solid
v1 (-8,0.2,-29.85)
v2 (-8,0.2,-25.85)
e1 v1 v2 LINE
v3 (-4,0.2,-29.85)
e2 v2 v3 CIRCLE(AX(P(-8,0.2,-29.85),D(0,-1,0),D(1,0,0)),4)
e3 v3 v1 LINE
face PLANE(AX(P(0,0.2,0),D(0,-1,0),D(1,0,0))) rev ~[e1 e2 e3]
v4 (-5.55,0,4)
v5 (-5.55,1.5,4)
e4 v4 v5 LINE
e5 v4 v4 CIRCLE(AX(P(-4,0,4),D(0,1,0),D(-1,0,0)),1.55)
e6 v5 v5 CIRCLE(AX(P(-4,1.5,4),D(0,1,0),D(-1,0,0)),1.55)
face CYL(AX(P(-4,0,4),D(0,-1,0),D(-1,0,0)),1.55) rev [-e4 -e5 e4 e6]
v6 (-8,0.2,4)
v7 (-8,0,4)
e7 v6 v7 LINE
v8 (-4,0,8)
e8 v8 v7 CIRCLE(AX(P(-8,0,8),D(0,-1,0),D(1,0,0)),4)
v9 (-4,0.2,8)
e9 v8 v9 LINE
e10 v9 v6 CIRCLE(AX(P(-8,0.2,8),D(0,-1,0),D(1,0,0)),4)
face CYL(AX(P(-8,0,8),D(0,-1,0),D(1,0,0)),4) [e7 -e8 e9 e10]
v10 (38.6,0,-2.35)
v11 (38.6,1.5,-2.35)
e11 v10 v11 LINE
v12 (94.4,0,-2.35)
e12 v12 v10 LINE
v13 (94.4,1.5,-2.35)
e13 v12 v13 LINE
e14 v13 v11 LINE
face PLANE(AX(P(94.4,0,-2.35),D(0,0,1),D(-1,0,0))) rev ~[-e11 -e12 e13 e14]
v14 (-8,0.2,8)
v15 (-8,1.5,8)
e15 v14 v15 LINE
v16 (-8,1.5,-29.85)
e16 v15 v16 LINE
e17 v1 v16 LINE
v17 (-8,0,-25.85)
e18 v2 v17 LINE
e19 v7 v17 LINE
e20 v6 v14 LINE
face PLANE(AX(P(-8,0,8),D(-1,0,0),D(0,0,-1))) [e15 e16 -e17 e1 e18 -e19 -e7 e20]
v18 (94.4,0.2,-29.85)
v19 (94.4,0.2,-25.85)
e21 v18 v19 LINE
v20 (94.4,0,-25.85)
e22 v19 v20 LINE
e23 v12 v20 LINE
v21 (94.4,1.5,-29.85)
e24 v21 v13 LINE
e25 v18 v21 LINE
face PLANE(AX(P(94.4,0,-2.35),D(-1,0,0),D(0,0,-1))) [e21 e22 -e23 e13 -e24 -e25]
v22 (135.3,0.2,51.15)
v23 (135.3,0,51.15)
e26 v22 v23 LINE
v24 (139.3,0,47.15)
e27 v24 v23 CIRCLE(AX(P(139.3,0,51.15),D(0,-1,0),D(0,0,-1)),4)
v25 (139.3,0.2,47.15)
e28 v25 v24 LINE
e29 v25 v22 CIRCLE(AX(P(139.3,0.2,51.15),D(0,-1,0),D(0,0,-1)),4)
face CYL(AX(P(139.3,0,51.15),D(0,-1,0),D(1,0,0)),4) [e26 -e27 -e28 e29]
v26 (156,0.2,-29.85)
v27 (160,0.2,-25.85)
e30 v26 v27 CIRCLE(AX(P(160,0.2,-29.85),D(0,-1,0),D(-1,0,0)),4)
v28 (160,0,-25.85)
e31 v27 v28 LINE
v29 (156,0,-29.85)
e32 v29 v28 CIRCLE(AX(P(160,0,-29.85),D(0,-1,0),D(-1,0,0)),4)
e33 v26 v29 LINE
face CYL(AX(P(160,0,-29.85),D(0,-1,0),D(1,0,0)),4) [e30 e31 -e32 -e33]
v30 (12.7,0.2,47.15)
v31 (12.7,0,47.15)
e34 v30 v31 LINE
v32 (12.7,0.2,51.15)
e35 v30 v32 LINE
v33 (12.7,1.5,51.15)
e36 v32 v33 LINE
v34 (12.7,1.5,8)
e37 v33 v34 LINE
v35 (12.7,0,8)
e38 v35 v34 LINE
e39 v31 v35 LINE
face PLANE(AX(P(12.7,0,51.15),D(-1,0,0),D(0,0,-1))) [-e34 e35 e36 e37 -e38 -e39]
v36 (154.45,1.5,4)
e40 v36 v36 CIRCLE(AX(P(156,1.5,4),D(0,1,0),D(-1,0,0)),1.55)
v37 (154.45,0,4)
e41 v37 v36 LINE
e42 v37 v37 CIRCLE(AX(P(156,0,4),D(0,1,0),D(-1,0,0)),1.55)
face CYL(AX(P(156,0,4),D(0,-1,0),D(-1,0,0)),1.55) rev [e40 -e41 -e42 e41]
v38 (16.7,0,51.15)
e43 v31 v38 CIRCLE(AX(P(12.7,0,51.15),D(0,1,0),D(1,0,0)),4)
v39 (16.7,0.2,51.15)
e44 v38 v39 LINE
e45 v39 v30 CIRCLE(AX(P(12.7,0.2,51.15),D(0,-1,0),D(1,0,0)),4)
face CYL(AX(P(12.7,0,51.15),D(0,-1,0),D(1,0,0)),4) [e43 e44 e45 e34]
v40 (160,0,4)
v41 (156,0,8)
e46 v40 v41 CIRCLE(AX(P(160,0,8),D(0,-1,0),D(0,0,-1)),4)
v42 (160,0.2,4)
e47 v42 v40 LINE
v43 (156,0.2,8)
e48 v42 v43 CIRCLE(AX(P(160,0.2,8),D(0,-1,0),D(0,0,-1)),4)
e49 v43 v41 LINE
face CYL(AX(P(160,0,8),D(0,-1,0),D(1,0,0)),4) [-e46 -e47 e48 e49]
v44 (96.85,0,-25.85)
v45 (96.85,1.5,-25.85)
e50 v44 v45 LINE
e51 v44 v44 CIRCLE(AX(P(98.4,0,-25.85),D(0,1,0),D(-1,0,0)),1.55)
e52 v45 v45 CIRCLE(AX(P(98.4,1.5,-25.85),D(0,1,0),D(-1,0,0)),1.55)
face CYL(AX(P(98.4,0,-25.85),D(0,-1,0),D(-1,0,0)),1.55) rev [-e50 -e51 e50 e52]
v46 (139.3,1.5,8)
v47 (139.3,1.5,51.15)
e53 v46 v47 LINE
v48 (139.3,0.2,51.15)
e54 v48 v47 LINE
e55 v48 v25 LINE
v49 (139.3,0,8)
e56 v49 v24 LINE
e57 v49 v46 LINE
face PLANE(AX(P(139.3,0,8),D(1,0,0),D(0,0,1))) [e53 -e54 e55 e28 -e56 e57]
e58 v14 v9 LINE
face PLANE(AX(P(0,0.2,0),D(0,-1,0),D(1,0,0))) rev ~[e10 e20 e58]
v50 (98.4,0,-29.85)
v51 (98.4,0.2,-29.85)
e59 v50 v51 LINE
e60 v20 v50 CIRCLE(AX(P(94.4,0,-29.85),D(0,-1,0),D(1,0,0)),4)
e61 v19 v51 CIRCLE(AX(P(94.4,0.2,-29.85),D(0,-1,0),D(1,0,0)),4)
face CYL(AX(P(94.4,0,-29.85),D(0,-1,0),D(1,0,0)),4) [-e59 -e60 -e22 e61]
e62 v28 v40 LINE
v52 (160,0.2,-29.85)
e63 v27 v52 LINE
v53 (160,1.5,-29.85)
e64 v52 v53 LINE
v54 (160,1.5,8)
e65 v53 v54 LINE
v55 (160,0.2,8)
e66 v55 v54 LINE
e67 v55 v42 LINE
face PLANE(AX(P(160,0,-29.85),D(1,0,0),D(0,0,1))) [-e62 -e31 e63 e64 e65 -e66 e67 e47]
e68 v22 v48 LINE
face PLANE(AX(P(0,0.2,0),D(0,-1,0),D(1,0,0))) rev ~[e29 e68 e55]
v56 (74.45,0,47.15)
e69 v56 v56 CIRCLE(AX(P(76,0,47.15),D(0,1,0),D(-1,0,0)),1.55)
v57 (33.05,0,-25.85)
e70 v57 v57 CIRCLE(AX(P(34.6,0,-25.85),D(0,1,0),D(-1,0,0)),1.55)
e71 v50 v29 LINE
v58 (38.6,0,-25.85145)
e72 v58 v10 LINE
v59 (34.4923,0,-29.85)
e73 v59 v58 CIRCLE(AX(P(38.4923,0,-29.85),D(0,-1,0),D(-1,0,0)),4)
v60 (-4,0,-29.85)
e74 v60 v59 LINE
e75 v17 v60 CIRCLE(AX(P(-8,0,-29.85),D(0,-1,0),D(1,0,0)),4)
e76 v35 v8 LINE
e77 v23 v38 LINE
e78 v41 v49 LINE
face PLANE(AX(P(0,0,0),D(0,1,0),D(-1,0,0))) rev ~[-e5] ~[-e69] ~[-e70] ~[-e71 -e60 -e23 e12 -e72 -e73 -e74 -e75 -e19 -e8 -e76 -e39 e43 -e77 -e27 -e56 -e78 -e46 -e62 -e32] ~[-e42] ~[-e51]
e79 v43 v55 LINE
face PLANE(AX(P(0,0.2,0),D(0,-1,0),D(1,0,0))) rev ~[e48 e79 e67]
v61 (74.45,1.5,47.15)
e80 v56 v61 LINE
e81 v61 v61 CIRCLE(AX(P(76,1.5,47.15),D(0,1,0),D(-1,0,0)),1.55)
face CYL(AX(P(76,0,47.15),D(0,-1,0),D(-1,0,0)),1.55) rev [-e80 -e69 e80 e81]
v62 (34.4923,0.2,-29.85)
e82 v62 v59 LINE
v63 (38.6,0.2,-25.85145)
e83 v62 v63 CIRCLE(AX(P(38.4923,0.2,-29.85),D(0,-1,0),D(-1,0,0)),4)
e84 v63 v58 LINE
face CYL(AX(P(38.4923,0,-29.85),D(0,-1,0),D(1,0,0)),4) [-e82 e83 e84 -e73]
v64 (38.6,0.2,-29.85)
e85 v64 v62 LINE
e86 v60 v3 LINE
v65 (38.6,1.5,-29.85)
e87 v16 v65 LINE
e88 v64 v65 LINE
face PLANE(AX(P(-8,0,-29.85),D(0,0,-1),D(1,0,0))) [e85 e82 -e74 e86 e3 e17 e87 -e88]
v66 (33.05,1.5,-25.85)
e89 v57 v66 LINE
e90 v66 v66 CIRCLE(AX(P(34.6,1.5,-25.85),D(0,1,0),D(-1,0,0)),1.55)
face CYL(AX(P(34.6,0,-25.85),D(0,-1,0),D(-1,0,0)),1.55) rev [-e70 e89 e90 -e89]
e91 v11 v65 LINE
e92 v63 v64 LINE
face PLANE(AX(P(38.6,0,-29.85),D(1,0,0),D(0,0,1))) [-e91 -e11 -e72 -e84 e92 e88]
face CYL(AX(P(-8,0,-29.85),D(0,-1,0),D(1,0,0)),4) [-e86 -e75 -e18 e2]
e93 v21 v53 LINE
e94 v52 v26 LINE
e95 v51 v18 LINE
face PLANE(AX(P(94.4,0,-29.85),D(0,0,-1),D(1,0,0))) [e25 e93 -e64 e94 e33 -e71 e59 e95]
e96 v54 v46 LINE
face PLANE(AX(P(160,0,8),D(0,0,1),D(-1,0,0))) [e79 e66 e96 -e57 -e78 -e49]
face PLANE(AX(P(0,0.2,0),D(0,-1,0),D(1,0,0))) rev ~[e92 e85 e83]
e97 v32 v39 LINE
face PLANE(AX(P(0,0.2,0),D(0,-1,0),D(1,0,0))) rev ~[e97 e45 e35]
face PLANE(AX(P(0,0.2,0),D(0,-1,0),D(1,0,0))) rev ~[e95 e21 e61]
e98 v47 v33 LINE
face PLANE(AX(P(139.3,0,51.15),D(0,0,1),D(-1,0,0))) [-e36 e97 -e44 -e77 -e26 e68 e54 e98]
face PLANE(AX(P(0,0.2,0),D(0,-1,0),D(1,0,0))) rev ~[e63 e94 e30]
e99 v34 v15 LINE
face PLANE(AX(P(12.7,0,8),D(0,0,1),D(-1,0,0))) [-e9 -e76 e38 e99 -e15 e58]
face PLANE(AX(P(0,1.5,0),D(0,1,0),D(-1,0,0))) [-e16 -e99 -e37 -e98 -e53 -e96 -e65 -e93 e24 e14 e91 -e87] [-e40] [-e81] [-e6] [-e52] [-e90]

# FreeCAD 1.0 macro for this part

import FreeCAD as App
import Part
import Sketcher
Q = App.Units.Quantity


def add_polygon(sketch, points):
    """Adds a closed chain of lines whose ends are joined by coincident constraints."""
    first, n = sketch.GeometryCount, len(points)
    for a, b in zip(points, points[1:] + points[:1]):
        sketch.addGeometry(Part.LineSegment(App.Vector(*a, 0), App.Vector(*b, 0)), False)
    for i in range(n):
        sketch.addConstraint(Sketcher.Constraint("Coincident", first + i, 2, first + (i + 1) % n, 1))

doc = App.newDocument("Part")
body = doc.addObject("PartDesign::Body", "Body")

# Sketch on XZ plane
sketch1 = body.newObject("Sketcher::SketchObject", "Sketch")
sketch1.AttachmentSupport = (doc.getObject("XZ_Plane"), [""])
sketch1.MapMode = "FlatFace"
add_polygon(sketch1, [(-8, 8), (12.7, 8), (12.7, 51.1), (139.3, 51.1), (139.3, 8), (160, 8), (160, -29.9), (94.4, -29.9), (94.4, -2.4), (38.6, -2.4), (38.6, -29.9), (-8, -29.9)])  # lines 0-11
sketch1.addGeometry(Part.Circle(App.Vector(98.4, -25.9, 0), App.Vector(0, 0, 1), 1.6), False)  # 12
sketch1.addGeometry(Part.Circle(App.Vector(156, 4, 0), App.Vector(0, 0, 1), 1.6), False)  # 13
sketch1.addGeometry(Part.Circle(App.Vector(-4, 4, 0), App.Vector(0, 0, 1), 1.6), False)  # 14
sketch1.addGeometry(Part.Circle(App.Vector(76, 47.1, 0), App.Vector(0, 0, 1), 1.6), False)  # 15
sketch1.addGeometry(Part.Circle(App.Vector(34.6, -25.9, 0), App.Vector(0, 0, 1), 1.6), False)  # 16
sketch1.addConstraint([
    Sketcher.Constraint("Horizontal", 0),
    Sketcher.Constraint("Vertical", 1),
    Sketcher.Constraint("Horizontal", 2),
    Sketcher.Constraint("Vertical", 3),
    Sketcher.Constraint("Horizontal", 4),
    Sketcher.Constraint("Vertical", 5),
    Sketcher.Constraint("Horizontal", 6),
    Sketcher.Constraint("Vertical", 7),
    Sketcher.Constraint("Horizontal", 8),
    Sketcher.Constraint("Vertical", 9),
    Sketcher.Constraint("Horizontal", 10),
    Sketcher.Constraint("Vertical", 11),
    Sketcher.Constraint("Equal", 12, 13),
    Sketcher.Constraint("Equal", 13, 14),
    Sketcher.Constraint("Equal", 14, 15),
    Sketcher.Constraint("Equal", 15, 16),
    Sketcher.Constraint("Horizontal", 13, 3, 14, 3),
    Sketcher.Constraint("Horizontal", 12, 3, 16, 3),
    Sketcher.Constraint("Horizontal", 0, 2, 3, 2),
    Sketcher.Constraint("Horizontal", 6, 2, 9, 2),
    Sketcher.Constraint("Equal", 0, 4),
    Sketcher.Constraint("Diameter", 12, Q("3.1 mm")),
    Sketcher.Constraint("DistanceX", 0, 1, 0, 2, Q("20.7 mm")),
    Sketcher.Constraint("DistanceX", 2, 1, 2, 2, Q("126.6 mm")),
    Sketcher.Constraint("DistanceX", 6, 2, 6, 1, Q("65.6 mm")),
    Sketcher.Constraint("DistanceX", 8, 2, 8, 1, Q("55.8 mm")),
    Sketcher.Constraint("DistanceY", 7, 1, 7, 2, Q("27.5 mm")),
    Sketcher.Constraint("DistanceX", -1, 1, 13, 3, Q("156 mm")),
    Sketcher.Constraint("DistanceY", -1, 1, 13, 3, Q("4 mm")),
    Sketcher.Constraint("DistanceX", 14, 3, -1, 1, Q("4 mm")),
    Sketcher.Constraint("DistanceX", -1, 1, 15, 3, Q("76 mm")),
    Sketcher.Constraint("DistanceY", -1, 1, 0, 2, Q("8 mm")),
    Sketcher.Constraint("DistanceX", -1, 1, 4, 2, Q("160 mm")),
    Sketcher.Constraint("DistanceY", 12, 3, 15, 3, Q("73 mm")),
    Sketcher.Constraint("DistanceY", 15, 3, 1, 2, Q("4 mm")),
    Sketcher.Constraint("DistanceY", 5, 2, 12, 3, Q("4 mm")),
    Sketcher.Constraint("DistanceX", 6, 2, 12, 3, Q("4 mm")),
    Sketcher.Constraint("DistanceX", 16, 3, 8, 2, Q("4 mm")),
    Sketcher.Constraint("DistanceY", 1, 1, 1, 2, Q("43.15 mm")),
])
pad1 = body.newObject("PartDesign::Pad", "Pad")
pad1.Profile = sketch1
pad1.Length = 1.5
pad1.Reversed = True

# Sketch on XZ plane
sketch2 = body.newObject("Sketcher::SketchObject", "Sketch001")
sketch2.AttachmentSupport = (doc.getObject("XZ_Plane"), [""])
sketch2.MapMode = "FlatFace"
sketch2.addGeometry([
    Part.Circle(App.Vector(12.7, 51.1, 0), App.Vector(0, 0, 1), 4),  # 0
    Part.Circle(App.Vector(139.3, 51.1, 0), App.Vector(0, 0, 1), 4),  # 1
    Part.Circle(App.Vector(160, -29.9, 0), App.Vector(0, 0, 1), 4),  # 2
    Part.Circle(App.Vector(160, 8, 0), App.Vector(0, 0, 1), 4),  # 3
    Part.Circle(App.Vector(94.4, -29.9, 0), App.Vector(0, 0, 1), 4),  # 4
    Part.Circle(App.Vector(38.5, -29.9, 0), App.Vector(0, 0, 1), 4),  # 5
    Part.Circle(App.Vector(-8, -29.9, 0), App.Vector(0, 0, 1), 4),  # 6
    Part.Circle(App.Vector(-8, 8, 0), App.Vector(0, 0, 1), 4),  # 7
], False)
sketch2.addConstraint([
    Sketcher.Constraint("Equal", 0, 1),
    Sketcher.Constraint("Equal", 1, 2),
    Sketcher.Constraint("Equal", 2, 3),
    Sketcher.Constraint("Equal", 3, 4),
    Sketcher.Constraint("Equal", 4, 5),
    Sketcher.Constraint("Equal", 5, 6),
    Sketcher.Constraint("Equal", 6, 7),
    Sketcher.Constraint("Horizontal", 0, 3, 1, 3),
    Sketcher.Constraint("Horizontal", 2, 3, 4, 3),
    Sketcher.Constraint("Horizontal", 4, 3, 5, 3),
    Sketcher.Constraint("Horizontal", 5, 3, 6, 3),
    Sketcher.Constraint("Horizontal", 3, 3, 7, 3),
    Sketcher.Constraint("Vertical", 2, 3, 3, 3),
    Sketcher.Constraint("Vertical", 6, 3, 7, 3),
    Sketcher.Constraint("Diameter", 0, Q("8 mm")),
    Sketcher.Constraint("DistanceY", -1, 1, 3, 3, Q("8 mm")),
    Sketcher.Constraint("DistanceX", 6, 3, -1, 1, Q("8 mm")),
    Sketcher.Constraint("DistanceX", -1, 1, 2, 3, Q("160 mm")),
    Sketcher.Constraint("DistanceY", 2, 3, 1, 3, Q("81 mm")),
    Sketcher.Constraint("DistanceX", -1, 1, 0, 3, Q("12.7 mm")),
    Sketcher.Constraint("DistanceX", -1, 1, 1, 3, Q("139.3 mm")),
    Sketcher.Constraint("DistanceX", -1, 1, 4, 3, Q("94.4 mm")),
    Sketcher.Constraint("DistanceY", -1, 1, 0, 3, Q("51.15 mm")),
    Sketcher.Constraint("DistanceX", -1, 1, 5, 3, Q("38.4923 mm")),
])
pad2 = body.newObject("PartDesign::Pad", "Pad001")
pad2.Profile = sketch2
pad2.Length = 0.2
pad2.Reversed = True

doc.recompute()
